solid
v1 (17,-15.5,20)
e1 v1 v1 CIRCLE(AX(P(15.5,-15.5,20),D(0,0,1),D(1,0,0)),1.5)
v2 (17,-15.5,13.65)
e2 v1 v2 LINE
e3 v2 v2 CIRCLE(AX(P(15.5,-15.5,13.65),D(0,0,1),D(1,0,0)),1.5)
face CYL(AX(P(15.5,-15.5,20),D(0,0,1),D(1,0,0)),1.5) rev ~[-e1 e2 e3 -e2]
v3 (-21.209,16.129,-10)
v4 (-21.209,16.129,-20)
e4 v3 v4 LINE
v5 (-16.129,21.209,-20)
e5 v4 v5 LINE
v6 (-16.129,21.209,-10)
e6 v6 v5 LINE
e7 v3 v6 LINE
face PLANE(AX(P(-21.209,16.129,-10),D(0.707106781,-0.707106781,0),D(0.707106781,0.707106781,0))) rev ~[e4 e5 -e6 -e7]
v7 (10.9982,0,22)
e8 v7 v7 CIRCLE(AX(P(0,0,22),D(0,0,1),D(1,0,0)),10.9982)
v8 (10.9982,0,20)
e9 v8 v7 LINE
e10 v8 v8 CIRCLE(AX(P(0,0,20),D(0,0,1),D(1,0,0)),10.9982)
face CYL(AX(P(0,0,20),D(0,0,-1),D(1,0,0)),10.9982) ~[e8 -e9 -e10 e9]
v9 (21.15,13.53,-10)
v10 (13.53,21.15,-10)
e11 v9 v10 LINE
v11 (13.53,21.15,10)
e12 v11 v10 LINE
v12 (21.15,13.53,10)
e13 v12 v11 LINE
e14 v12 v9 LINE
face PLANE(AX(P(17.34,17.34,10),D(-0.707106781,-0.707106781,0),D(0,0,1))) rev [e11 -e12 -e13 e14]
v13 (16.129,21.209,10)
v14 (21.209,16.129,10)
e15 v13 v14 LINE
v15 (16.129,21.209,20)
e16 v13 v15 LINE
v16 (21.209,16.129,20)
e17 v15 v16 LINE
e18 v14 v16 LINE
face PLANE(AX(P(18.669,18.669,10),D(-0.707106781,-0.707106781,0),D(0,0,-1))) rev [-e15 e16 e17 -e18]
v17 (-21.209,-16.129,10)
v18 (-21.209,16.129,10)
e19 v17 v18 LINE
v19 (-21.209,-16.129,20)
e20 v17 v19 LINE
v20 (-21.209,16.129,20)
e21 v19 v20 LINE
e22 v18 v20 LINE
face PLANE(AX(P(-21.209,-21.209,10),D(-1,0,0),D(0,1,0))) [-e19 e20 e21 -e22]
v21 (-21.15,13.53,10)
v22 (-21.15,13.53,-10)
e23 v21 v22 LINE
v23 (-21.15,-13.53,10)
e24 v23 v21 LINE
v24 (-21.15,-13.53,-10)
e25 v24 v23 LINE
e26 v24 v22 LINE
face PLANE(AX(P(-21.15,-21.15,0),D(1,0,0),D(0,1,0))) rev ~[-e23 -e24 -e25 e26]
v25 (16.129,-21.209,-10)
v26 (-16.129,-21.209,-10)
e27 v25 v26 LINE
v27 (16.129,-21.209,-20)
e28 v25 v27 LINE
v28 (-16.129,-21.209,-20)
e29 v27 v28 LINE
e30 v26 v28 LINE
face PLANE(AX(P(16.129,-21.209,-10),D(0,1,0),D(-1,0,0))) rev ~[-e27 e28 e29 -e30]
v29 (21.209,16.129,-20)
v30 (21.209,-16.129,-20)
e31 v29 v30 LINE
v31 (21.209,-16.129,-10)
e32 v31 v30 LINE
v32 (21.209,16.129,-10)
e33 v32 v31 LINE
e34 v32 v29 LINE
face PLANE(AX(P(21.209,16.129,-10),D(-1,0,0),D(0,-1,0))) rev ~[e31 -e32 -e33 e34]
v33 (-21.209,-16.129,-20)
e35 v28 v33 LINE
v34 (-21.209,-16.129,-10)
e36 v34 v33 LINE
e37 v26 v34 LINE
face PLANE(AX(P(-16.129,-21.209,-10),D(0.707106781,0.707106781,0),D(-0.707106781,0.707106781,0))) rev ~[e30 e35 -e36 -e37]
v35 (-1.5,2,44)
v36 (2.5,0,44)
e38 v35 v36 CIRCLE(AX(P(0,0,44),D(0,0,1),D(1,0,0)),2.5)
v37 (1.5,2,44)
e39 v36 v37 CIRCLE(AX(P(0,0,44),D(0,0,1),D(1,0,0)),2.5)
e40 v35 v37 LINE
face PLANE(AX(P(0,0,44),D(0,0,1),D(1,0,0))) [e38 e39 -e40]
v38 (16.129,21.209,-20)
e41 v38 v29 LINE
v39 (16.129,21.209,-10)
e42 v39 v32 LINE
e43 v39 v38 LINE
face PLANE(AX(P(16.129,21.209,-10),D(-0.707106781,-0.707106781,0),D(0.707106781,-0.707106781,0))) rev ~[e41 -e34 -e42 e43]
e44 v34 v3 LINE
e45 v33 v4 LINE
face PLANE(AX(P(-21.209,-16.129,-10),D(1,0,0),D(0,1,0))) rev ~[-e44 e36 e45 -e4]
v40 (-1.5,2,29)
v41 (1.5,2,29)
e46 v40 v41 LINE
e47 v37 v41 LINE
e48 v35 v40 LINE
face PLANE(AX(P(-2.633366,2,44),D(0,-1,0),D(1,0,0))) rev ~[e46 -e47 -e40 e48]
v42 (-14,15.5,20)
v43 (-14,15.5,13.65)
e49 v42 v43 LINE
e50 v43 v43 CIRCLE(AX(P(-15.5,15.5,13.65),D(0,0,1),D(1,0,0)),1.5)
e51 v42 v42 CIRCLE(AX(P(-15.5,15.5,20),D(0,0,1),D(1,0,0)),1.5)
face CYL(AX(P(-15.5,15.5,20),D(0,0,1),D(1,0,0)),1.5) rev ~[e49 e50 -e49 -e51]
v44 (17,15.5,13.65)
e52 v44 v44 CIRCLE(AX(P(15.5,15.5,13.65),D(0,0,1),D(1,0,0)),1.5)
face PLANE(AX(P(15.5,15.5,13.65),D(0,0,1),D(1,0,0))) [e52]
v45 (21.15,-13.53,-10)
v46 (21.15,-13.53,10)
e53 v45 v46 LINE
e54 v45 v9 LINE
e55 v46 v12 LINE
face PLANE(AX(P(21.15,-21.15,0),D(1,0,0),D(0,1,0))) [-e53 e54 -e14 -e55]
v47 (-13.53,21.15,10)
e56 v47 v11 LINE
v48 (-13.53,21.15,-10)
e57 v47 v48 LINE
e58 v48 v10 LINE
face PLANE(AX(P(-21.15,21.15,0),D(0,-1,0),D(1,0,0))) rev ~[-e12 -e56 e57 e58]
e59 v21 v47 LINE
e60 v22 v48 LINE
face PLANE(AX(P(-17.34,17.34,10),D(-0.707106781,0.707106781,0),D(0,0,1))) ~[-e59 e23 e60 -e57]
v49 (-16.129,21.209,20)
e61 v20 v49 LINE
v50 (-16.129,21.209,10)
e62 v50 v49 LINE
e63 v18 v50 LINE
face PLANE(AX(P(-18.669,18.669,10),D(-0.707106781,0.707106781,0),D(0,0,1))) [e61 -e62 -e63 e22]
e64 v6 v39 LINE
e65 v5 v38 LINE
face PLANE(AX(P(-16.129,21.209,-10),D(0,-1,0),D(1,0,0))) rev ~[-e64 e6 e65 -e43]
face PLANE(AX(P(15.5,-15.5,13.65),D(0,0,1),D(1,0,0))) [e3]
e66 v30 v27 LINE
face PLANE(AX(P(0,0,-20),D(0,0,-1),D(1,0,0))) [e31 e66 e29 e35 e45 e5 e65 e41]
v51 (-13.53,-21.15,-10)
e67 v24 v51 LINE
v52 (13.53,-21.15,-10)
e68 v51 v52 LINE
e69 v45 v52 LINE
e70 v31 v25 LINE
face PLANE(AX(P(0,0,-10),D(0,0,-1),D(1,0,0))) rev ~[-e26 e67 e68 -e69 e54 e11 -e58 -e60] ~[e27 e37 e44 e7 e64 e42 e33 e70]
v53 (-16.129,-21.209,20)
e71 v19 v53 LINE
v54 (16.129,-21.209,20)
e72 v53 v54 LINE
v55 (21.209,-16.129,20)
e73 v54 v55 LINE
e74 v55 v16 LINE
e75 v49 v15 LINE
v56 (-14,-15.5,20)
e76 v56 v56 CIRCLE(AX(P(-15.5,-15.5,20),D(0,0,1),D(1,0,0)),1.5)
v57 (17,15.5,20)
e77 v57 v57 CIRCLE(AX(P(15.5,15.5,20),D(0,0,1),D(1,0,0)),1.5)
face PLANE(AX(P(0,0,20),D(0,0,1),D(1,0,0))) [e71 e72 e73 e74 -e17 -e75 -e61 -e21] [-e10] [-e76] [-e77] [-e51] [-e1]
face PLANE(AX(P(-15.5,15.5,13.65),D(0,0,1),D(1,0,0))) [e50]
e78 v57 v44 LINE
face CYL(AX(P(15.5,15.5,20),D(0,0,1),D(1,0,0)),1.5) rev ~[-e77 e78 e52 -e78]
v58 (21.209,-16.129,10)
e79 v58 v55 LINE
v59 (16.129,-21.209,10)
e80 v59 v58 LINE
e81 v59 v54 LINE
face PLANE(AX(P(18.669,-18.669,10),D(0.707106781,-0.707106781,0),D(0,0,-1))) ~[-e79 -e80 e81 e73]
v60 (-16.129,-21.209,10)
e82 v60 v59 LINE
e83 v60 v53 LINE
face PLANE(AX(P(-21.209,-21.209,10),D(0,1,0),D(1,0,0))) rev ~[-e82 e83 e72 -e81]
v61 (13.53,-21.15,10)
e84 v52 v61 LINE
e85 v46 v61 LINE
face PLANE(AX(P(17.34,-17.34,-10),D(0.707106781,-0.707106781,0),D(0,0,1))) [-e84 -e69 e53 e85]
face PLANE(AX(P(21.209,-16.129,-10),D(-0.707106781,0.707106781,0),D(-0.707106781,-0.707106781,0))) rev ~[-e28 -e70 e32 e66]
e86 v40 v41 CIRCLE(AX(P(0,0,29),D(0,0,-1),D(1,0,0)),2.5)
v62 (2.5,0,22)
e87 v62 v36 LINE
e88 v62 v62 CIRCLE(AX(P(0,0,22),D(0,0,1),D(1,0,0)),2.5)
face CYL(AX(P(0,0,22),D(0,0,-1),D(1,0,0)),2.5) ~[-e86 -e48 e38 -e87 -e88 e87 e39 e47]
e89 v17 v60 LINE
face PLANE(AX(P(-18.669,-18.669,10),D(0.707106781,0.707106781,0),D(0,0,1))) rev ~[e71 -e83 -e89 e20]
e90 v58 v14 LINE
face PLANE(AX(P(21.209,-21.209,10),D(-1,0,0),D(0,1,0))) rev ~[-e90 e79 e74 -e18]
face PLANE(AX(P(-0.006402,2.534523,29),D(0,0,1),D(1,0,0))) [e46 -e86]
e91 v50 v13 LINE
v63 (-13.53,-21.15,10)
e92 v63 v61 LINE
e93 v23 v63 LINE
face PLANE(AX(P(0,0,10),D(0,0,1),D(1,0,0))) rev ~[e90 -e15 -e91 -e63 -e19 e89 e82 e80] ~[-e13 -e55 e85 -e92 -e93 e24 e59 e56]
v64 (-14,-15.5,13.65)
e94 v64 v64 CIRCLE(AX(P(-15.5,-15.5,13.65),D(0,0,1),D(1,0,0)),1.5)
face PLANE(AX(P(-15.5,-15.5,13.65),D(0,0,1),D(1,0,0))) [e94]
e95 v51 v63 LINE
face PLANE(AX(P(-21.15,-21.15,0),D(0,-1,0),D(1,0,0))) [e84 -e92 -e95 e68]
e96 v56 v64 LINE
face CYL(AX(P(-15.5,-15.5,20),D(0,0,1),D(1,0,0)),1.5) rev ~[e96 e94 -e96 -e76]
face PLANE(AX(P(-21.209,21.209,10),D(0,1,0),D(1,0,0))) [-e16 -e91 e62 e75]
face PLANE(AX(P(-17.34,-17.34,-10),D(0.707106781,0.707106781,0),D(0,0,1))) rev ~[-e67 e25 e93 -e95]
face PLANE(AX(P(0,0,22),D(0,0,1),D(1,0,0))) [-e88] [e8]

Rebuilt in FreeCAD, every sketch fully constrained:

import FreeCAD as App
import Part
import Sketcher
Q = App.Units.Quantity


def edges_at(feature, points):
    """Names of the edges that pass closest to the given points."""
    edges = feature.Shape.Edges
    near = lambda p: min(range(len(edges)), key=lambda i: edges[i].distToShape(Part.Vertex(*p))[0])
    return sorted({f"Edge{near(p) + 1}" for p in points})

doc = App.newDocument("Part")
params = doc.addObject("Spreadsheet::Sheet", "Params")
for row, (alias, value) in enumerate([
    ("sketch1_width", "42.3 mm"),
    ("pad1_length", "20 mm"),
    ("chamfer_size", "7.62 mm"),
    ("pad2_length", "10 mm"),
    ("chamfer2_size", "5.08 mm"),
    ("pad3_length", "10 mm"),
    ("pad4_length", "2 mm"),
    ("sketch5_diameter", "5 mm"),
    ("pad5_length", "22 mm"),
    ("pocket1_length", "15 mm"),
    ("sketch7_diameter", "3 mm"),
    ("pocket2_length", "6.35 mm"),
], start=1):
    params.set(f"A{row}", alias)
    params.set(f"B{row}", "=" + value)
    params.setAlias(f"B{row}", alias)

body = doc.addObject("PartDesign::Body", "Body")

# Sketch on XY plane
sketch1 = doc.addObject("Sketcher::SketchObject", "Sketch")
body.addObject(sketch1)
sketch1.AttachmentSupport = (doc.XY_Plane, [""])
sketch1.MapMode = "FlatFace"
sketch1.addGeometry([
    Part.LineSegment(App.Vector(-21, 21, 0), App.Vector(-21, -21, 0)),
    Part.LineSegment(App.Vector(-21, -21, 0), App.Vector(21, -21, 0)),
    Part.LineSegment(App.Vector(21, -21, 0), App.Vector(21, 21, 0)),
    Part.LineSegment(App.Vector(21, 21, 0), App.Vector(-21, 21, 0)),
], False)
sketch1.addConstraint([
    Sketcher.Constraint("Coincident", 0, 2, 1, 1),
    Sketcher.Constraint("Coincident", 1, 2, 2, 1),
    Sketcher.Constraint("Coincident", 2, 2, 3, 1),
    Sketcher.Constraint("Coincident", 3, 2, 0, 1),
    Sketcher.Constraint("Vertical", 0),
    Sketcher.Constraint("Horizontal", 1),
    Sketcher.Constraint("Vertical", 2),
    Sketcher.Constraint("Horizontal", 3),
    Sketcher.Constraint("Symmetric", 0, 2, 2, 2, -1, 1),
    Sketcher.Constraint("Equal", 3, 0),
    Sketcher.Constraint("DistanceX", 1, 1, 1, 2, Q("42.3 mm")),
])
sketch1.setExpression("Constraints[10]", "Params.sketch1_width")
pad1 = doc.addObject("PartDesign::Pad", "Pad")
body.addObject(pad1)
pad1.Profile = sketch1
pad1.setExpression("Length", "Params.pad1_length")
pad1.Midplane = True
doc.recompute()

chamfer = doc.addObject("PartDesign::Chamfer", "Chamfer")
body.addObject(chamfer)
chamfer.Base = (pad1, edges_at(pad1, [
    (21.15, 21.15, 0),
    (-21.15, 21.15, 0),
    (-21.15, -21.15, 0),
    (21.15, -21.15, 0),
]))
chamfer.setExpression("Size", "Params.chamfer_size")

# Sketch on XY plane
sketch2 = doc.addObject("Sketcher::SketchObject", "Sketch001")
body.addObject(sketch2)
sketch2.AttachmentSupport = (doc.XY_Plane, [""])
sketch2.MapMode = "FlatFace"
sketch2.AttachmentOffset = App.Placement(App.Vector(0, 0, 10), App.Rotation())
sketch2.addGeometry([
    Part.LineSegment(App.Vector(-21, 21, 0), App.Vector(-21, -21, 0)),
    Part.LineSegment(App.Vector(-21, -21, 0), App.Vector(21, -21, 0)),
    Part.LineSegment(App.Vector(21, -21, 0), App.Vector(21, 21, 0)),
    Part.LineSegment(App.Vector(21, 21, 0), App.Vector(-21, 21, 0)),
], False)
sketch2.addConstraint([
    Sketcher.Constraint("Coincident", 0, 2, 1, 1),
    Sketcher.Constraint("Coincident", 1, 2, 2, 1),
    Sketcher.Constraint("Coincident", 2, 2, 3, 1),
    Sketcher.Constraint("Coincident", 3, 2, 0, 1),
    Sketcher.Constraint("Vertical", 0),
    Sketcher.Constraint("Horizontal", 1),
    Sketcher.Constraint("Vertical", 2),
    Sketcher.Constraint("Horizontal", 3),
    Sketcher.Constraint("Symmetric", 0, 2, 2, 2, -1, 1),
    Sketcher.Constraint("Equal", 3, 0),
    Sketcher.Constraint("DistanceX", 1, 1, 1, 2, Q("42.418 mm")),
])
pad2 = doc.addObject("PartDesign::Pad", "Pad001")
body.addObject(pad2)
pad2.Profile = sketch2
pad2.setExpression("Length", "Params.pad2_length")
doc.recompute()

chamfer2 = doc.addObject("PartDesign::Chamfer", "Chamfer001")
body.addObject(chamfer2)
chamfer2.Base = (pad2, edges_at(pad2, [
    (21.209, 21.209, 15),
    (-21.209, 21.209, 15),
    (-21.209, -21.209, 15),
    (21.209, -21.209, 15),
]))
chamfer2.setExpression("Size", "Params.chamfer2_size")

# Sketch on XY plane
sketch3 = doc.addObject("Sketcher::SketchObject", "Sketch002")
body.addObject(sketch3)
sketch3.AttachmentSupport = (doc.XY_Plane, [""])
sketch3.MapMode = "FlatFace"
sketch3.AttachmentOffset = App.Placement(App.Vector(0, 0, -10), App.Rotation())
sketch3.addGeometry([
    Part.LineSegment(App.Vector(16, -21, 0), App.Vector(-16, -21, 0)),  # 0
    Part.LineSegment(App.Vector(-16, -21, 0), App.Vector(-21, -16, 0)),  # 1
    Part.LineSegment(App.Vector(-21, -16, 0), App.Vector(-21, 16, 0)),  # 2
    Part.LineSegment(App.Vector(-21, 16, 0), App.Vector(-16, 21, 0)),  # 3
    Part.LineSegment(App.Vector(-16, 21, 0), App.Vector(16, 21, 0)),  # 4
    Part.LineSegment(App.Vector(16, 21, 0), App.Vector(21, 16, 0)),  # 5
    Part.LineSegment(App.Vector(21, 16, 0), App.Vector(21, -16, 0)),  # 6
    Part.LineSegment(App.Vector(21, -16, 0), App.Vector(16, -21, 0)),  # 7
], False)
sketch3.addConstraint([
    Sketcher.Constraint("Coincident", 0, 2, 1, 1),
    Sketcher.Constraint("Coincident", 1, 2, 2, 1),
    Sketcher.Constraint("Coincident", 2, 2, 3, 1),
    Sketcher.Constraint("Coincident", 3, 2, 4, 1),
    Sketcher.Constraint("Coincident", 4, 2, 5, 1),
    Sketcher.Constraint("Coincident", 5, 2, 6, 1),
    Sketcher.Constraint("Coincident", 6, 2, 7, 1),
    Sketcher.Constraint("Coincident", 7, 2, 0, 1),
    Sketcher.Constraint("Horizontal", 0),
    Sketcher.Constraint("Vertical", 2),
    Sketcher.Constraint("Horizontal", 4),
    Sketcher.Constraint("Vertical", 6),
    Sketcher.Constraint("Symmetric", 0, 2, 4, 2, -1, 1),
    Sketcher.Constraint("Symmetric", 1, 2, 5, 2, -1, 1),
    Sketcher.Constraint("Perpendicular", 1, 3),
    Sketcher.Constraint("Perpendicular", 5, 7),
    Sketcher.Constraint("Horizontal", 2, 2, 5, 2),
    Sketcher.Constraint("Horizontal", 1, 2, 6, 2),
    Sketcher.Constraint("Vertical", 0, 2, 3, 2),
    Sketcher.Constraint("Equal", 4, 2),
    Sketcher.Constraint("DistanceX", 0, 2, 0, 1, Q("32.258 mm")),
    Sketcher.Constraint("DistanceX", 1, 2, 0, 2, Q("5.08 mm")),
])
pad3 = doc.addObject("PartDesign::Pad", "Pad002")
body.addObject(pad3)
pad3.Profile = sketch3
pad3.setExpression("Length", "Params.pad3_length")
pad3.Reversed = True

# Sketch on XY plane
sketch4 = doc.addObject("Sketcher::SketchObject", "Sketch003")
body.addObject(sketch4)
sketch4.AttachmentSupport = (doc.XY_Plane, [""])
sketch4.MapMode = "FlatFace"
sketch4.AttachmentOffset = App.Placement(App.Vector(0, 0, 20), App.Rotation())
sketch4.addGeometry(Part.Circle(App.Vector(0, 0, 0), App.Vector(0, 0, 1), 11), False)
sketch4.addConstraint([
    Sketcher.Constraint("Coincident", 0, 3, -1, 1),
    Sketcher.Constraint("Diameter", 0, Q("21.9964 mm")),
])
pad4 = doc.addObject("PartDesign::Pad", "Pad003")
body.addObject(pad4)
pad4.Profile = sketch4
pad4.setExpression("Length", "Params.pad4_length")

# Sketch on XY plane
sketch5 = doc.addObject("Sketcher::SketchObject", "Sketch004")
body.addObject(sketch5)
sketch5.AttachmentSupport = (doc.XY_Plane, [""])
sketch5.MapMode = "FlatFace"
sketch5.AttachmentOffset = App.Placement(App.Vector(0, 0, 22), App.Rotation())
sketch5.addGeometry(Part.Circle(App.Vector(0, 0, 0), App.Vector(0, 0, 1), 2.5), False)
sketch5.addConstraint([
    Sketcher.Constraint("Coincident", 0, 3, -1, 1),
    Sketcher.Constraint("Diameter", 0, Q("5 mm")),
])
sketch5.setExpression("Constraints[1]", "Params.sketch5_diameter")
pad5 = doc.addObject("PartDesign::Pad", "Pad004")
body.addObject(pad5)
pad5.Profile = sketch5
pad5.setExpression("Length", "Params.pad5_length")

# Sketch on XY plane
sketch6 = doc.addObject("Sketcher::SketchObject", "Sketch005")
body.addObject(sketch6)
sketch6.AttachmentSupport = (doc.XY_Plane, [""])
sketch6.MapMode = "FlatFace"
sketch6.AttachmentOffset = App.Placement(App.Vector(0, 0, 44), App.Rotation())
sketch6.addGeometry([
    Part.LineSegment(App.Vector(2.6, 2.9, 0), App.Vector(-2.6, 2.9, 0)),
    Part.LineSegment(App.Vector(-2.6, 2.9, 0), App.Vector(-2.6, 2, 0)),
    Part.LineSegment(App.Vector(-2.6, 2, 0), App.Vector(2.6, 2, 0)),
    Part.LineSegment(App.Vector(2.6, 2, 0), App.Vector(2.6, 2.9, 0)),
], False)
sketch6.addConstraint([
    Sketcher.Constraint("Coincident", 0, 2, 1, 1),
    Sketcher.Constraint("Coincident", 1, 2, 2, 1),
    Sketcher.Constraint("Coincident", 2, 2, 3, 1),
    Sketcher.Constraint("Coincident", 3, 2, 0, 1),
    Sketcher.Constraint("Horizontal", 0),
    Sketcher.Constraint("Vertical", 1),
    Sketcher.Constraint("Horizontal", 2),
    Sketcher.Constraint("Vertical", 3),
    Sketcher.Constraint("DistanceY", -1, 1, 1, 2, Q("2 mm")),
    Sketcher.Constraint("DistanceX", 0, 2, 0, 1, Q("5.253729 mm")),
    Sketcher.Constraint("DistanceY", 1, 2, 1, 1, Q("0.933404 mm")),
    Sketcher.Constraint("DistanceX", 0, 2, -1, 1, Q("2.633366 mm")),
])
pocket1 = doc.addObject("PartDesign::Pocket", "Pocket")
body.addObject(pocket1)
pocket1.Profile = sketch6
pocket1.setExpression("Length", "Params.pocket1_length")

# Sketch on XY plane
sketch7 = doc.addObject("Sketcher::SketchObject", "Sketch006")
body.addObject(sketch7)
sketch7.AttachmentSupport = (doc.XY_Plane, [""])
sketch7.MapMode = "FlatFace"
sketch7.AttachmentOffset = App.Placement(App.Vector(0, 0, 20), App.Rotation())
sketch7.addGeometry([
    Part.Circle(App.Vector(-15.5, 15.5, 0), App.Vector(0, 0, 1), 1.5),
    Part.Circle(App.Vector(15.5, 15.5, 0), App.Vector(0, 0, 1), 1.5),
    Part.Circle(App.Vector(15.5, -15.5, 0), App.Vector(0, 0, 1), 1.5),
    Part.Circle(App.Vector(-15.5, -15.5, 0), App.Vector(0, 0, 1), 1.5),
], False)
sketch7.addConstraint([
    Sketcher.Constraint("Equal", 0, 1),
    Sketcher.Constraint("Equal", 1, 2),
    Sketcher.Constraint("Equal", 2, 3),
    Sketcher.Constraint("Symmetric", 0, 3, 2, 3, -1, 1),
    Sketcher.Constraint("Symmetric", 1, 3, 3, 3, -1, 1),
    Sketcher.Constraint("Symmetric", 0, 3, 1, 3, -2),
    Sketcher.Constraint("Diameter", 0, Q("3 mm")),
    Sketcher.Constraint("DistanceX", 0, 3, 1, 3, Q("31 mm")),
    Sketcher.Constraint("DistanceY", 2, 3, 1, 3, Q("31 mm")),
])
sketch7.setExpression("Constraints[6]", "Params.sketch7_diameter")
pocket2 = doc.addObject("PartDesign::Pocket", "Pocket001")
body.addObject(pocket2)
pocket2.Profile = sketch7
pocket2.setExpression("Length", "Params.pocket2_length")

doc.recompute()
